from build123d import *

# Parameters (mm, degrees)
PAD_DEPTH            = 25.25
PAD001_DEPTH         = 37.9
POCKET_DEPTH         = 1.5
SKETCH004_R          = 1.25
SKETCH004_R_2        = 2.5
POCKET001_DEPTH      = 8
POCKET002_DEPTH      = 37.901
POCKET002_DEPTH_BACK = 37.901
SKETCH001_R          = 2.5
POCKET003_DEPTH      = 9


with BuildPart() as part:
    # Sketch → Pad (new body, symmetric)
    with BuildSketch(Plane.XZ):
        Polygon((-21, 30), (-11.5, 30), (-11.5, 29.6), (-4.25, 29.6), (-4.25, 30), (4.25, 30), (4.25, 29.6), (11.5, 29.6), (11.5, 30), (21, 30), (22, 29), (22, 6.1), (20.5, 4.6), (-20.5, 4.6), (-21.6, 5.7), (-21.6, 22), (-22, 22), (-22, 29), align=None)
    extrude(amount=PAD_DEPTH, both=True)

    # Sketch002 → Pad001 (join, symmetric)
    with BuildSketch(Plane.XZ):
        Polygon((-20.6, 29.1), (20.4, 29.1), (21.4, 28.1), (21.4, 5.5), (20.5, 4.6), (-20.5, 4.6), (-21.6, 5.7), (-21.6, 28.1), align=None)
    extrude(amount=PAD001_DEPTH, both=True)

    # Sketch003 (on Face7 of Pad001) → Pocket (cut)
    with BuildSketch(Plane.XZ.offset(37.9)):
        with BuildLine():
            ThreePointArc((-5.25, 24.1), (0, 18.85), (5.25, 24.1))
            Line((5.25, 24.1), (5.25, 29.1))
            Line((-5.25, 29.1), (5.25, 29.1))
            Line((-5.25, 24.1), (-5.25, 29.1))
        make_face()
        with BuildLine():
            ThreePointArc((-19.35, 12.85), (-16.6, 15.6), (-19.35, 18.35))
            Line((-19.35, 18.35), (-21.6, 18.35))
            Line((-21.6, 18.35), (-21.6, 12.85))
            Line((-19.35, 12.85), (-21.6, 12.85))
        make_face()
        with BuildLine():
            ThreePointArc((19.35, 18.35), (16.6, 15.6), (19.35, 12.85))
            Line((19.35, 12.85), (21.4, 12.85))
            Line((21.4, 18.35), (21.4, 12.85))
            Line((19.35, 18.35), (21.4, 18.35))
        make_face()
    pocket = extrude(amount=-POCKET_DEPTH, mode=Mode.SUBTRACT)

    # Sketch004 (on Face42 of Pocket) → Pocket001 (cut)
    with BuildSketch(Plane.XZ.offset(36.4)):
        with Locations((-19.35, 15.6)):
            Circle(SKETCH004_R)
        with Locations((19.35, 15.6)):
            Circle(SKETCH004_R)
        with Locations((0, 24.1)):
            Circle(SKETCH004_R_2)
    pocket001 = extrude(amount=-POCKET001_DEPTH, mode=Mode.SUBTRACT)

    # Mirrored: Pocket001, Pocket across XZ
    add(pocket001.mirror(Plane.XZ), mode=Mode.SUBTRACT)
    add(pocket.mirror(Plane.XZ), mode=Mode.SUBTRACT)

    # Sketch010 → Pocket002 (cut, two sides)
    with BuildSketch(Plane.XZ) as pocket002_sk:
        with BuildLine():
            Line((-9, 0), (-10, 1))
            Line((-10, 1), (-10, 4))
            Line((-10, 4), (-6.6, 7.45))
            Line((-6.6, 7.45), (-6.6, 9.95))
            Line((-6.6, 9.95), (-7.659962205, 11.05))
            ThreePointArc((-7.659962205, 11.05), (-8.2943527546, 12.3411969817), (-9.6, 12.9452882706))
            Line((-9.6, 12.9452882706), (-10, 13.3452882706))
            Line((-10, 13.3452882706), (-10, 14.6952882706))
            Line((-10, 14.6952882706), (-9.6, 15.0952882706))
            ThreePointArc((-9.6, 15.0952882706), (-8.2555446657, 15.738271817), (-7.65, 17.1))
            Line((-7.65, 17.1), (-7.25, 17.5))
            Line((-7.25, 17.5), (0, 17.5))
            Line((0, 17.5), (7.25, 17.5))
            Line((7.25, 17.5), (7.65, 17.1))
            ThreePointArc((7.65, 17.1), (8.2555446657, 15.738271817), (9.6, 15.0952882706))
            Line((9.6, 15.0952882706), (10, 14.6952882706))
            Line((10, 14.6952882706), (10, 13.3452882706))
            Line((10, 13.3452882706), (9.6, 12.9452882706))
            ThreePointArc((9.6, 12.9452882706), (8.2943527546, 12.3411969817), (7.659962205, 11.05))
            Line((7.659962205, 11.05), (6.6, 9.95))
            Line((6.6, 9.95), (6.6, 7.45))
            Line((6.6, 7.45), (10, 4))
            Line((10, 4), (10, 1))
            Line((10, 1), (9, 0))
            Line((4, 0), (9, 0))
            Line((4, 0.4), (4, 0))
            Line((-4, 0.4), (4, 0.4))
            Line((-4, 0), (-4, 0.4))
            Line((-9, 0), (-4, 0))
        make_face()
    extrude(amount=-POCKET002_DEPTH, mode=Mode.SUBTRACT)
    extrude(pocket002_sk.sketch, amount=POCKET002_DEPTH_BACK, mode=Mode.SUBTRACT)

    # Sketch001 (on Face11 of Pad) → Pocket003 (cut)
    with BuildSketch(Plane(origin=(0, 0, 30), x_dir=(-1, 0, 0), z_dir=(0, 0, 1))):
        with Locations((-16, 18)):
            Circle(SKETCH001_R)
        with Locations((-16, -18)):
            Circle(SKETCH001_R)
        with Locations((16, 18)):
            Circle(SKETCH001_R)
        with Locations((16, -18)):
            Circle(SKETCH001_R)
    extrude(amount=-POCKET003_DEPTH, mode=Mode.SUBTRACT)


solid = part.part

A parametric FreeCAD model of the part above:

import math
import FreeCAD as App
import Part
import Sketcher
from FreeCAD import Vector


def add_polygon(sketch, points):
    """Adds a closed chain of lines whose ends are joined by coincident constraints."""
    first, n = sketch.GeometryCount, len(points)
    for a, b in zip(points, points[1:] + points[:1]):
        sketch.addGeometry(Part.LineSegment(App.Vector(*a, 0), App.Vector(*b, 0)), False)
    for i in range(n):
        sketch.addConstraint(Sketcher.Constraint("Coincident", first + i, 2, first + (i + 1) % n, 1))

doc = App.newDocument("Part")
params = doc.addObject("Spreadsheet::Sheet", "Params")
for row, (alias, value) in enumerate([
    ("sketch1_width", "41 mm"),
    ("sketch1_height", "7 mm"),
    ("sketch1_width2", "9.5 mm"),
    ("sketch1_width3", "0.4 mm"),
    ("sketch1_width4", "8.5 mm"),
    ("pad1_length", "50.5 mm"),
    ("sketch2_width", "41 mm"),
    ("sketch2_height", "22.4 mm"),
    ("sketch2_height2", "22.6 mm"),
    ("pad2_length", "75.8 mm"),
    ("sketch3_height", "5 mm"),
    ("sketch3_radius", "5.25 mm"),
    ("sketch3_radius2", "2.75 mm"),
    ("sketch3_width", "2.25 mm"),
    ("sketch3_width2", "2.05 mm"),
    ("pocket1_length", "1.5 mm"),
    ("sketch4_diameter", "5 mm"),
    ("sketch4_diameter2", "2.5 mm"),
    ("pocket2_length", "8 mm"),
    ("sketch5_width", "5 mm"),
    ("sketch5_width2", "8 mm"),
    ("sketch5_height", "3 mm"),
    ("sketch5_width3", "14.5 mm"),
    ("sketch5_height2", "0.4 mm"),
    ("sketch6_diameter", "5 mm"),
    ("pocket4_length", "9 mm"),
], start=1):
    params.set(f"A{row}", alias)
    params.set(f"B{row}", "=" + value)
    params.setAlias(f"B{row}", alias)

body = doc.addObject("PartDesign::Body", "Body")

# Sketch on XZ plane
sketch1 = body.newObject("Sketcher::SketchObject", "Sketch")
sketch1.AttachmentSupport = (doc.getObject("XZ_Plane"), [""])
sketch1.MapMode = "FlatFace"
add_polygon(sketch1, [(-11.5, 30), (-21, 30), (-22, 29), (-22, 22), (-21.6, 22), (-21.6, 5.7), (-20.5, 4.6), (20.5, 4.6), (22, 6.1), (22, 29), (21, 30), (11.5, 30), (11.5, 29.6), (4.25, 29.6), (4.25, 30), (-4.25, 30), (-4.25, 29.6), (-11.5, 29.6)])  # lines 0-17
sketch1.addConstraint([
    Sketcher.Constraint("Horizontal", 0),
    Sketcher.Constraint("Vertical", 2),
    Sketcher.Constraint("Horizontal", 3),
    Sketcher.Constraint("Vertical", 4),
    Sketcher.Constraint("Horizontal", 6),
    Sketcher.Constraint("Vertical", 8),
    Sketcher.Constraint("Horizontal", 10),
    Sketcher.Constraint("Vertical", 11),
    Sketcher.Constraint("Horizontal", 12),
    Sketcher.Constraint("Vertical", 13),
    Sketcher.Constraint("Horizontal", 14),
    Sketcher.Constraint("Vertical", 15),
    Sketcher.Constraint("Horizontal", 16),
    Sketcher.Constraint("Vertical", 17),
    Sketcher.Constraint("Symmetric", 1, 2, 8, 2, -2),
    Sketcher.Constraint("Symmetric", 0, 2, 9, 2, -2),
    Sketcher.Constraint("Symmetric", 12, 2, 15, 2, -2),
    Sketcher.Constraint("Perpendicular", 1, 5),
    Sketcher.Constraint("Perpendicular", 5, 7),
    Sketcher.Constraint("Perpendicular", 7, 9),
    Sketcher.Constraint("Horizontal", 10, 2, 13, 2),
    Sketcher.Constraint("Equal", 0, 10),
    Sketcher.Constraint("Equal", 3, 11),
    Sketcher.Constraint("DistanceX", 6, 1, 6, 2, 41.0),
    Sketcher.Constraint("DistanceY", 2, 2, 2, 1, 7.0),
    Sketcher.Constraint("DistanceX", 0, 2, 0, 1, 9.5),
    Sketcher.Constraint("DistanceX", 3, 1, 3, 2, 0.4),
    Sketcher.Constraint("DistanceX", 14, 2, 14, 1, 8.5),
    Sketcher.Constraint("DistanceY", 4, 2, 4, 1, 16.3),
    Sketcher.Constraint("DistanceY", 8, 1, 8, 2, 22.9),
    Sketcher.Constraint("DistanceX", 0, 2, -1, 1, 21.0),
    Sketcher.Constraint("DistanceY", -1, 1, 0, 2, 30.0),
    Sketcher.Constraint("DistanceX", 1, 2, -1, 1, 22.0),
])
sketch1.setExpression("Constraints[41]", "Params.sketch1_width")
sketch1.setExpression("Constraints[42]", "Params.sketch1_height")
sketch1.setExpression("Constraints[43]", "Params.sketch1_width2")
sketch1.setExpression("Constraints[44]", "Params.sketch1_width3")
sketch1.setExpression("Constraints[45]", "Params.sketch1_width4")
pad1 = body.newObject("PartDesign::Pad", "Pad")
pad1.Profile = sketch1
pad1.setExpression("Length", "Params.pad1_length")
pad1.Midplane = True

# Sketch on XZ plane
sketch2 = body.newObject("Sketcher::SketchObject", "Sketch001")
sketch2.AttachmentSupport = (doc.getObject("XZ_Plane"), [""])
sketch2.MapMode = "FlatFace"
add_polygon(sketch2, [(20.4, 29.1), (-20.6, 29.1), (-21.6, 28.1), (-21.6, 5.7), (-20.5, 4.6), (20.5, 4.6), (21.4, 5.5), (21.4, 28.1)])  # lines 0-7
sketch2.addConstraint([
    Sketcher.Constraint("Horizontal", 0),
    Sketcher.Constraint("Vertical", 2),
    Sketcher.Constraint("Horizontal", 4),
    Sketcher.Constraint("Vertical", 6),
    Sketcher.Constraint("Perpendicular", 1, 3),
    Sketcher.Constraint("Perpendicular", 3, 5),
    Sketcher.Constraint("Perpendicular", 5, 7),
    Sketcher.Constraint("Horizontal", 1, 2, 6, 2),
    Sketcher.Constraint("Equal", 0, 4),
    Sketcher.Constraint("Equal", 1, 7),
    Sketcher.Constraint("DistanceX", 0, 2, 0, 1, 41.0),
    Sketcher.Constraint("DistanceY", 2, 2, 2, 1, 22.4),
    Sketcher.Constraint("DistanceY", 6, 1, 6, 2, 22.6),
    Sketcher.Constraint("DistanceX", 1, 2, 0, 2, 1.0),
    Sketcher.Constraint("DistanceX", 0, 2, -1, 1, 20.6),
    Sketcher.Constraint("DistanceY", -1, 1, 0, 2, 29.1),
])
sketch2.setExpression("Constraints[18]", "Params.sketch2_width")
sketch2.setExpression("Constraints[19]", "Params.sketch2_height")
sketch2.setExpression("Constraints[20]", "Params.sketch2_height2")
pad2 = body.newObject("PartDesign::Pad", "Pad001")
pad2.Profile = sketch2
pad2.setExpression("Length", "Params.pad2_length")
pad2.Midplane = True

# Sketch on XZ plane
sketch3 = body.newObject("Sketcher::SketchObject", "Sketch002")
sketch3.AttachmentSupport = (doc.getObject("XZ_Plane"), [""])
sketch3.MapMode = "FlatFace"
sketch3.AttachmentOffset = App.Placement(Vector(0, 0, 37.9), App.Rotation())
sketch3.addGeometry([
    Part.ArcOfCircle(Part.Circle(Vector(0, 24.1, 0), Vector(0, 0, 1), 5.2), math.radians(180), math.radians(360)),  # 0
    Part.LineSegment(Vector(5.2, 24.1, 0), Vector(5.2, 29.1, 0)),  # 1
    Part.LineSegment(Vector(5.2, 29.1, 0), Vector(-5.2, 29.1, 0)),  # 2
    Part.LineSegment(Vector(-5.2, 29.1, 0), Vector(-5.2, 24.1, 0)),  # 3
    Part.ArcOfCircle(Part.Circle(Vector(-19.4, 15.6, 0), Vector(0, 0, 1), 2.8), math.radians(-90), math.radians(90)),  # 4
    Part.LineSegment(Vector(-19.4, 18.4, 0), Vector(-21.6, 18.4, 0)),  # 5
    Part.LineSegment(Vector(-21.6, 18.4, 0), Vector(-21.6, 12.8, 0)),  # 6
    Part.LineSegment(Vector(-21.6, 12.8, 0), Vector(-19.4, 12.8, 0)),  # 7
    Part.ArcOfCircle(Part.Circle(Vector(19.4, 15.6, 0), Vector(0, 0, 1), 2.8), math.radians(90), math.radians(270)),  # 8
    Part.LineSegment(Vector(19.4, 12.8, 0), Vector(21.4, 12.8, 0)),  # 9
    Part.LineSegment(Vector(21.4, 12.8, 0), Vector(21.4, 18.4, 0)),  # 10
    Part.LineSegment(Vector(21.4, 18.4, 0), Vector(19.4, 18.4, 0)),  # 11
], False)
sketch3.addConstraint([
    Sketcher.Constraint("Tangent", 0, 2, 1, 1),
    Sketcher.Constraint("Coincident", 1, 2, 2, 1),
    Sketcher.Constraint("Coincident", 2, 2, 3, 1),
    Sketcher.Constraint("Tangent", 3, 2, 0, 1),
    Sketcher.Constraint("Tangent", 4, 2, 5, 1),
    Sketcher.Constraint("Coincident", 5, 2, 6, 1),
    Sketcher.Constraint("Coincident", 6, 2, 7, 1),
    Sketcher.Constraint("Tangent", 7, 2, 4, 1),
    Sketcher.Constraint("Tangent", 8, 2, 9, 1),
    Sketcher.Constraint("Coincident", 9, 2, 10, 1),
    Sketcher.Constraint("Coincident", 10, 2, 11, 1),
    Sketcher.Constraint("Tangent", 11, 2, 8, 1),
    Sketcher.Constraint("Vertical", 1),
    Sketcher.Constraint("Horizontal", 2),
    Sketcher.Constraint("Vertical", 3),
    Sketcher.Constraint("Horizontal", 5),
    Sketcher.Constraint("Vertical", 6),
    Sketcher.Constraint("Horizontal", 7),
    Sketcher.Constraint("Horizontal", 9),
    Sketcher.Constraint("Vertical", 10),
    Sketcher.Constraint("Horizontal", 11),
    Sketcher.Constraint("Equal", 4, 8),
    Sketcher.Constraint("Symmetric", 4, 3, 8, 3, -2),
    Sketcher.Constraint("PointOnObject", 0, 3, -2),
    Sketcher.Constraint("DistanceY", 1, 1, 1, 2, 5.0),
    Sketcher.Constraint("Radius", 0, 5.25),
    Sketcher.Constraint("Radius", 4, 2.75),
    Sketcher.Constraint("DistanceX", 5, 2, 5, 1, 2.25),
    Sketcher.Constraint("DistanceX", 9, 1, 9, 2, 2.05),
    Sketcher.Constraint("DistanceY", -1, 1, 0, 3, 24.1),
    Sketcher.Constraint("DistanceY", -1, 1, 4, 3, 15.6),
    Sketcher.Constraint("DistanceX", 5, 2, -1, 1, 21.6),
])
sketch3.setExpression("Constraints[24]", "Params.sketch3_height")
sketch3.setExpression("Constraints[25]", "Params.sketch3_radius")
sketch3.setExpression("Constraints[26]", "Params.sketch3_radius2")
sketch3.setExpression("Constraints[27]", "Params.sketch3_width")
sketch3.setExpression("Constraints[28]", "Params.sketch3_width2")
pocket1 = body.newObject("PartDesign::Pocket", "Pocket")
pocket1.Profile = sketch3
pocket1.setExpression("Length", "Params.pocket1_length")

# Sketch on XZ plane
sketch4 = body.newObject("Sketcher::SketchObject", "Sketch003")
sketch4.AttachmentSupport = (doc.getObject("XZ_Plane"), [""])
sketch4.MapMode = "FlatFace"
sketch4.AttachmentOffset = App.Placement(Vector(0, 0, 36.4), App.Rotation())
sketch4.addGeometry([
    Part.Circle(Vector(-19.4, 15.6, 0), Vector(0, 0, 1), 1.2),
    Part.Circle(Vector(19.4, 15.6, 0), Vector(0, 0, 1), 1.2),
    Part.Circle(Vector(0, 24.1, 0), Vector(0, 0, 1), 2.5),
], False)
sketch4.addConstraint([
    Sketcher.Constraint("Equal", 0, 1),
    Sketcher.Constraint("Symmetric", 0, 3, 1, 3, -2),
    Sketcher.Constraint("PointOnObject", 2, 3, -2),
    Sketcher.Constraint("Diameter", 2, 5.0),
    Sketcher.Constraint("Diameter", 0, 2.5),
    Sketcher.Constraint("DistanceY", -1, 1, 0, 3, 15.6),
    Sketcher.Constraint("DistanceY", -1, 1, 2, 3, 24.1),
    Sketcher.Constraint("DistanceX", 0, 3, 1, 3, 38.7),
])
sketch4.setExpression("Constraints[3]", "Params.sketch4_diameter")
sketch4.setExpression("Constraints[4]", "Params.sketch4_diameter2")
pocket2 = body.newObject("PartDesign::Pocket", "Pocket001")
pocket2.Profile = sketch4
pocket2.setExpression("Length", "Params.pocket2_length")
doc.recompute()

mirrored = body.newObject("PartDesign::Mirrored", "Mirrored")
mirrored.Originals = [pocket2, pocket1]
mirrored.MirrorPlane = (doc.getObject("XZ_Plane"), [""])
body.Tip = mirrored

# Sketch on XZ plane
sketch5 = body.newObject("Sketcher::SketchObject", "Sketch004")
sketch5.AttachmentSupport = (doc.getObject("XZ_Plane"), [""])
sketch5.MapMode = "FlatFace"
sketch5.addGeometry([
    Part.LineSegment(Vector(-10, 1, 0), Vector(-9, 0, 0)),  # 0
    Part.LineSegment(Vector(-9, 0, 0), Vector(-4, 0, 0)),  # 1
    Part.LineSegment(Vector(-4, 0, 0), Vector(-4, 0.4, 0)),  # 2
    Part.LineSegment(Vector(-4, 0.4, 0), Vector(4, 0.4, 0)),  # 3
    Part.LineSegment(Vector(4, 0.4, 0), Vector(4, 0, 0)),  # 4
    Part.LineSegment(Vector(4, 0, 0), Vector(9, 0, 0)),  # 5
    Part.LineSegment(Vector(9, 0, 0), Vector(10, 1, 0)),  # 6
    Part.LineSegment(Vector(10, 1, 0), Vector(10, 4, 0)),  # 7
    Part.LineSegment(Vector(10, 4, 0), Vector(6.6, 7.45, 0)),  # 8
    Part.LineSegment(Vector(6.6, 7.45, 0), Vector(6.6, 9.95, 0)),  # 9
    Part.LineSegment(Vector(6.6, 9.95, 0), Vector(7.66, 11.05, 0)),  # 10
    Part.ArcOfCircle(Part.Circle(Vector(9.8, 10.8, 0), Vector(0, 0, 1), 2.15), math.radians(95), math.radians(173)),  # 11
    Part.LineSegment(Vector(9.6, 12.95, 0), Vector(10, 13.35, 0)),  # 12
    Part.LineSegment(Vector(10, 13.35, 0), Vector(10, 14.7, 0)),  # 13
    Part.LineSegment(Vector(10, 14.7, 0), Vector(9.6, 15.1, 0)),  # 14
    Part.ArcOfCircle(Part.Circle(Vector(9.8, 17.24, 0), Vector(0, 0, 1), 2.15), math.radians(-176), math.radians(-95)),  # 15
    Part.LineSegment(Vector(7.65, 17.1, 0), Vector(7.25, 17.5, 0)),  # 16
    Part.LineSegment(Vector(7.25, 17.5, 0), Vector(-7.25, 17.5, 0)),  # 17
    Part.LineSegment(Vector(-7.25, 17.5, 0), Vector(-7.65, 17.1, 0)),  # 18
    Part.ArcOfCircle(Part.Circle(Vector(-9.8, 17.24, 0), Vector(0, 0, 1), 2.15), math.radians(-85), math.radians(-4)),  # 19
    Part.LineSegment(Vector(-9.6, 15.1, 0), Vector(-10, 14.7, 0)),  # 20
    Part.LineSegment(Vector(-10, 14.7, 0), Vector(-10, 13.35, 0)),  # 21
    Part.LineSegment(Vector(-10, 13.35, 0), Vector(-9.6, 12.95, 0)),  # 22
    Part.ArcOfCircle(Part.Circle(Vector(-9.8, 10.8, 0), Vector(0, 0, 1), 2.15), math.radians(7), math.radians(85)),  # 23
    Part.LineSegment(Vector(-7.66, 11.05, 0), Vector(-6.6, 9.95, 0)),  # 24
    Part.LineSegment(Vector(-6.6, 9.95, 0), Vector(-6.6, 7.45, 0)),  # 25
    Part.LineSegment(Vector(-6.6, 7.45, 0), Vector(-10, 4, 0)),  # 26
    Part.LineSegment(Vector(-10, 4, 0), Vector(-10, 1, 0)),  # 27
], False)
sketch5.addConstraint([
    Sketcher.Constraint("Coincident", 0, 2, 1, 1),
    Sketcher.Constraint("Coincident", 1, 2, 2, 1),
    Sketcher.Constraint("Coincident", 2, 2, 3, 1),
    Sketcher.Constraint("Coincident", 3, 2, 4, 1),
    Sketcher.Constraint("Coincident", 4, 2, 5, 1),
    Sketcher.Constraint("Coincident", 5, 2, 6, 1),
    Sketcher.Constraint("Coincident", 6, 2, 7, 1),
    Sketcher.Constraint("Coincident", 7, 2, 8, 1),
    Sketcher.Constraint("Coincident", 8, 2, 9, 1),
    Sketcher.Constraint("Coincident", 9, 2, 10, 1),
    Sketcher.Constraint("Coincident", 10, 2, 11, 2),
    Sketcher.Constraint("Coincident", 11, 1, 12, 1),
    Sketcher.Constraint("Coincident", 12, 2, 13, 1),
    Sketcher.Constraint("Coincident", 13, 2, 14, 1),
    Sketcher.Constraint("Coincident", 14, 2, 15, 2),
    Sketcher.Constraint("Coincident", 15, 1, 16, 1),
    Sketcher.Constraint("Coincident", 16, 2, 17, 1),
    Sketcher.Constraint("Coincident", 17, 2, 18, 1),
    Sketcher.Constraint("Coincident", 18, 2, 19, 2),
    Sketcher.Constraint("Coincident", 19, 1, 20, 1),
    Sketcher.Constraint("Coincident", 20, 2, 21, 1),
    Sketcher.Constraint("Coincident", 21, 2, 22, 1),
    Sketcher.Constraint("Coincident", 22, 2, 23, 2),
    Sketcher.Constraint("Coincident", 23, 1, 24, 1),
    Sketcher.Constraint("Coincident", 24, 2, 25, 1),
    Sketcher.Constraint("Coincident", 25, 2, 26, 1),
    Sketcher.Constraint("Coincident", 26, 2, 27, 1),
    Sketcher.Constraint("Coincident", 27, 2, 0, 1),
    Sketcher.Constraint("Horizontal", 1),
    Sketcher.Constraint("Vertical", 2),
    Sketcher.Constraint("Horizontal", 3),
    Sketcher.Constraint("Vertical", 4),
    Sketcher.Constraint("Horizontal", 5),
    Sketcher.Constraint("Vertical", 7),
    Sketcher.Constraint("Vertical", 9),
    Sketcher.Constraint("Vertical", 13),
    Sketcher.Constraint("Horizontal", 17),
    Sketcher.Constraint("Vertical", 21),
    Sketcher.Constraint("Vertical", 25),
    Sketcher.Constraint("Vertical", 27),
    Sketcher.Constraint("Equal", 11, 15),
    Sketcher.Constraint("Equal", 15, 19),
    Sketcher.Constraint("Equal", 19, 23),
    Sketcher.Constraint("Symmetric", 1, 2, 4, 2, -1, 1),
    Sketcher.Constraint("Symmetric", 15, 3, 19, 3, -2),
    Sketcher.Constraint("Symmetric", 11, 3, 23, 3, -2),
    Sketcher.Constraint("Symmetric", 0, 2, 5, 2, -2),
    Sketcher.Constraint("Symmetric", 13, 2, 20, 2, -2),
    Sketcher.Constraint("Symmetric", 9, 2, 24, 2, -2),
    Sketcher.Constraint("Symmetric", 7, 2, 26, 2, -2),
    Sketcher.Constraint("Perpendicular", 0, 6),
    Sketcher.Constraint("Parallel", 6, 12),
    Sketcher.Constraint("Perpendicular", 12, 14),
    Sketcher.Constraint("Parallel", 14, 16),
    Sketcher.Constraint("Perpendicular", 16, 18),
    Sketcher.Constraint("Parallel", 18, 20),
    Sketcher.Constraint("Perpendicular", 20, 22),
    Sketcher.Constraint("Horizontal", 15, 1, 18, 2),
    Sketcher.Constraint("Horizontal", 14, 2, 19, 1),
    Sketcher.Constraint("Horizontal", 12, 2, 21, 2),
    Sketcher.Constraint("Horizontal", 10, 2, 23, 1),
    Sketcher.Constraint("Horizontal", 8, 2, 25, 2),
    Sketcher.Constraint("Vertical", 11, 3, 15, 3),
    Sketcher.Constraint("Vertical", 7, 2, 12, 2),
    Sketcher.Constraint("Vertical", 11, 1, 14, 2),
    Sketcher.Constraint("Equal", 14, 16),
    Sketcher.Constraint("DistanceX", 1, 1, 1, 2, 5.0),
    Sketcher.Constraint("DistanceX", 3, 1, 3, 2, 8.0),
    Sketcher.Constraint("DistanceY", 7, 1, 7, 2, 3.0),
    Sketcher.Constraint("DistanceX", 17, 2, 17, 1, 14.5),
    Sketcher.Constraint("DistanceY", 2, 1, 2, 2, 0.4),
    Sketcher.Constraint("DistanceY", 9, 1, 9, 2, 2.5),
    Sketcher.Constraint("DistanceX", -1, 1, 6, 2, 10.0),
    Sketcher.Constraint("DistanceX", 9, 2, 11, 1, 3.0),
    Sketcher.Constraint("DistanceY", 13, 1, 13, 2, 1.35),
    Sketcher.Constraint("DistanceX", -1, 1, 11, 3, 9.8),
    Sketcher.Constraint("DistanceY", -1, 1, 11, 3, 10.8),
    Sketcher.Constraint("DistanceX", -1, 1, 8, 2, 6.6),
    Sketcher.Constraint("DistanceY", -1, 1, 15, 1, 17.1),
    Sketcher.Constraint("DistanceY", 9, 2, 10, 2, 1.1),
    Sketcher.Constraint("DistanceY", -1, 1, 8, 2, 7.45),
])
sketch5.setExpression("Constraints[66]", "Params.sketch5_width")
sketch5.setExpression("Constraints[67]", "Params.sketch5_width2")
sketch5.setExpression("Constraints[68]", "Params.sketch5_height")
sketch5.setExpression("Constraints[69]", "Params.sketch5_width3")
sketch5.setExpression("Constraints[70]", "Params.sketch5_height2")
pocket3 = body.newObject("PartDesign::Pocket", "Pocket002")
pocket3.Profile = sketch5
pocket3.Type = "ThroughAll"
pocket3.Midplane = True

# Sketch on XY plane
sketch6 = body.newObject("Sketcher::SketchObject", "Sketch005")
sketch6.AttachmentSupport = (doc.getObject("XY_Plane"), [""])
sketch6.MapMode = "FlatFace"
sketch6.AttachmentOffset = App.Placement(Vector(0, 0, 30), App.Rotation())
sketch6.addGeometry([
    Part.Circle(Vector(16, -18, 0), Vector(0, 0, 1), 2.5),
    Part.Circle(Vector(16, 18, 0), Vector(0, 0, 1), 2.5),
    Part.Circle(Vector(-16, -18, 0), Vector(0, 0, 1), 2.5),
    Part.Circle(Vector(-16, 18, 0), Vector(0, 0, 1), 2.5),
], False)
sketch6.addConstraint([
    Sketcher.Constraint("Equal", 0, 1),
    Sketcher.Constraint("Equal", 1, 2),
    Sketcher.Constraint("Equal", 2, 3),
    Sketcher.Constraint("Symmetric", 1, 3, 2, 3, -1, 1),
    Sketcher.Constraint("Symmetric", 0, 3, 3, 3, -1, 1),
    Sketcher.Constraint("Symmetric", 0, 3, 2, 3, -2),
    Sketcher.Constraint("Diameter", 0, 5.0),
    Sketcher.Constraint("DistanceX", -1, 1, 0, 3, 16.0),
    Sketcher.Constraint("DistanceY", 0, 3, -1, 1, 18.0),
])
sketch6.setExpression("Constraints[6]", "Params.sketch6_diameter")
pocket4 = body.newObject("PartDesign::Pocket", "Pocket003")
pocket4.Profile = sketch6
pocket4.setExpression("Length", "Params.pocket4_length")

doc.recompute()
